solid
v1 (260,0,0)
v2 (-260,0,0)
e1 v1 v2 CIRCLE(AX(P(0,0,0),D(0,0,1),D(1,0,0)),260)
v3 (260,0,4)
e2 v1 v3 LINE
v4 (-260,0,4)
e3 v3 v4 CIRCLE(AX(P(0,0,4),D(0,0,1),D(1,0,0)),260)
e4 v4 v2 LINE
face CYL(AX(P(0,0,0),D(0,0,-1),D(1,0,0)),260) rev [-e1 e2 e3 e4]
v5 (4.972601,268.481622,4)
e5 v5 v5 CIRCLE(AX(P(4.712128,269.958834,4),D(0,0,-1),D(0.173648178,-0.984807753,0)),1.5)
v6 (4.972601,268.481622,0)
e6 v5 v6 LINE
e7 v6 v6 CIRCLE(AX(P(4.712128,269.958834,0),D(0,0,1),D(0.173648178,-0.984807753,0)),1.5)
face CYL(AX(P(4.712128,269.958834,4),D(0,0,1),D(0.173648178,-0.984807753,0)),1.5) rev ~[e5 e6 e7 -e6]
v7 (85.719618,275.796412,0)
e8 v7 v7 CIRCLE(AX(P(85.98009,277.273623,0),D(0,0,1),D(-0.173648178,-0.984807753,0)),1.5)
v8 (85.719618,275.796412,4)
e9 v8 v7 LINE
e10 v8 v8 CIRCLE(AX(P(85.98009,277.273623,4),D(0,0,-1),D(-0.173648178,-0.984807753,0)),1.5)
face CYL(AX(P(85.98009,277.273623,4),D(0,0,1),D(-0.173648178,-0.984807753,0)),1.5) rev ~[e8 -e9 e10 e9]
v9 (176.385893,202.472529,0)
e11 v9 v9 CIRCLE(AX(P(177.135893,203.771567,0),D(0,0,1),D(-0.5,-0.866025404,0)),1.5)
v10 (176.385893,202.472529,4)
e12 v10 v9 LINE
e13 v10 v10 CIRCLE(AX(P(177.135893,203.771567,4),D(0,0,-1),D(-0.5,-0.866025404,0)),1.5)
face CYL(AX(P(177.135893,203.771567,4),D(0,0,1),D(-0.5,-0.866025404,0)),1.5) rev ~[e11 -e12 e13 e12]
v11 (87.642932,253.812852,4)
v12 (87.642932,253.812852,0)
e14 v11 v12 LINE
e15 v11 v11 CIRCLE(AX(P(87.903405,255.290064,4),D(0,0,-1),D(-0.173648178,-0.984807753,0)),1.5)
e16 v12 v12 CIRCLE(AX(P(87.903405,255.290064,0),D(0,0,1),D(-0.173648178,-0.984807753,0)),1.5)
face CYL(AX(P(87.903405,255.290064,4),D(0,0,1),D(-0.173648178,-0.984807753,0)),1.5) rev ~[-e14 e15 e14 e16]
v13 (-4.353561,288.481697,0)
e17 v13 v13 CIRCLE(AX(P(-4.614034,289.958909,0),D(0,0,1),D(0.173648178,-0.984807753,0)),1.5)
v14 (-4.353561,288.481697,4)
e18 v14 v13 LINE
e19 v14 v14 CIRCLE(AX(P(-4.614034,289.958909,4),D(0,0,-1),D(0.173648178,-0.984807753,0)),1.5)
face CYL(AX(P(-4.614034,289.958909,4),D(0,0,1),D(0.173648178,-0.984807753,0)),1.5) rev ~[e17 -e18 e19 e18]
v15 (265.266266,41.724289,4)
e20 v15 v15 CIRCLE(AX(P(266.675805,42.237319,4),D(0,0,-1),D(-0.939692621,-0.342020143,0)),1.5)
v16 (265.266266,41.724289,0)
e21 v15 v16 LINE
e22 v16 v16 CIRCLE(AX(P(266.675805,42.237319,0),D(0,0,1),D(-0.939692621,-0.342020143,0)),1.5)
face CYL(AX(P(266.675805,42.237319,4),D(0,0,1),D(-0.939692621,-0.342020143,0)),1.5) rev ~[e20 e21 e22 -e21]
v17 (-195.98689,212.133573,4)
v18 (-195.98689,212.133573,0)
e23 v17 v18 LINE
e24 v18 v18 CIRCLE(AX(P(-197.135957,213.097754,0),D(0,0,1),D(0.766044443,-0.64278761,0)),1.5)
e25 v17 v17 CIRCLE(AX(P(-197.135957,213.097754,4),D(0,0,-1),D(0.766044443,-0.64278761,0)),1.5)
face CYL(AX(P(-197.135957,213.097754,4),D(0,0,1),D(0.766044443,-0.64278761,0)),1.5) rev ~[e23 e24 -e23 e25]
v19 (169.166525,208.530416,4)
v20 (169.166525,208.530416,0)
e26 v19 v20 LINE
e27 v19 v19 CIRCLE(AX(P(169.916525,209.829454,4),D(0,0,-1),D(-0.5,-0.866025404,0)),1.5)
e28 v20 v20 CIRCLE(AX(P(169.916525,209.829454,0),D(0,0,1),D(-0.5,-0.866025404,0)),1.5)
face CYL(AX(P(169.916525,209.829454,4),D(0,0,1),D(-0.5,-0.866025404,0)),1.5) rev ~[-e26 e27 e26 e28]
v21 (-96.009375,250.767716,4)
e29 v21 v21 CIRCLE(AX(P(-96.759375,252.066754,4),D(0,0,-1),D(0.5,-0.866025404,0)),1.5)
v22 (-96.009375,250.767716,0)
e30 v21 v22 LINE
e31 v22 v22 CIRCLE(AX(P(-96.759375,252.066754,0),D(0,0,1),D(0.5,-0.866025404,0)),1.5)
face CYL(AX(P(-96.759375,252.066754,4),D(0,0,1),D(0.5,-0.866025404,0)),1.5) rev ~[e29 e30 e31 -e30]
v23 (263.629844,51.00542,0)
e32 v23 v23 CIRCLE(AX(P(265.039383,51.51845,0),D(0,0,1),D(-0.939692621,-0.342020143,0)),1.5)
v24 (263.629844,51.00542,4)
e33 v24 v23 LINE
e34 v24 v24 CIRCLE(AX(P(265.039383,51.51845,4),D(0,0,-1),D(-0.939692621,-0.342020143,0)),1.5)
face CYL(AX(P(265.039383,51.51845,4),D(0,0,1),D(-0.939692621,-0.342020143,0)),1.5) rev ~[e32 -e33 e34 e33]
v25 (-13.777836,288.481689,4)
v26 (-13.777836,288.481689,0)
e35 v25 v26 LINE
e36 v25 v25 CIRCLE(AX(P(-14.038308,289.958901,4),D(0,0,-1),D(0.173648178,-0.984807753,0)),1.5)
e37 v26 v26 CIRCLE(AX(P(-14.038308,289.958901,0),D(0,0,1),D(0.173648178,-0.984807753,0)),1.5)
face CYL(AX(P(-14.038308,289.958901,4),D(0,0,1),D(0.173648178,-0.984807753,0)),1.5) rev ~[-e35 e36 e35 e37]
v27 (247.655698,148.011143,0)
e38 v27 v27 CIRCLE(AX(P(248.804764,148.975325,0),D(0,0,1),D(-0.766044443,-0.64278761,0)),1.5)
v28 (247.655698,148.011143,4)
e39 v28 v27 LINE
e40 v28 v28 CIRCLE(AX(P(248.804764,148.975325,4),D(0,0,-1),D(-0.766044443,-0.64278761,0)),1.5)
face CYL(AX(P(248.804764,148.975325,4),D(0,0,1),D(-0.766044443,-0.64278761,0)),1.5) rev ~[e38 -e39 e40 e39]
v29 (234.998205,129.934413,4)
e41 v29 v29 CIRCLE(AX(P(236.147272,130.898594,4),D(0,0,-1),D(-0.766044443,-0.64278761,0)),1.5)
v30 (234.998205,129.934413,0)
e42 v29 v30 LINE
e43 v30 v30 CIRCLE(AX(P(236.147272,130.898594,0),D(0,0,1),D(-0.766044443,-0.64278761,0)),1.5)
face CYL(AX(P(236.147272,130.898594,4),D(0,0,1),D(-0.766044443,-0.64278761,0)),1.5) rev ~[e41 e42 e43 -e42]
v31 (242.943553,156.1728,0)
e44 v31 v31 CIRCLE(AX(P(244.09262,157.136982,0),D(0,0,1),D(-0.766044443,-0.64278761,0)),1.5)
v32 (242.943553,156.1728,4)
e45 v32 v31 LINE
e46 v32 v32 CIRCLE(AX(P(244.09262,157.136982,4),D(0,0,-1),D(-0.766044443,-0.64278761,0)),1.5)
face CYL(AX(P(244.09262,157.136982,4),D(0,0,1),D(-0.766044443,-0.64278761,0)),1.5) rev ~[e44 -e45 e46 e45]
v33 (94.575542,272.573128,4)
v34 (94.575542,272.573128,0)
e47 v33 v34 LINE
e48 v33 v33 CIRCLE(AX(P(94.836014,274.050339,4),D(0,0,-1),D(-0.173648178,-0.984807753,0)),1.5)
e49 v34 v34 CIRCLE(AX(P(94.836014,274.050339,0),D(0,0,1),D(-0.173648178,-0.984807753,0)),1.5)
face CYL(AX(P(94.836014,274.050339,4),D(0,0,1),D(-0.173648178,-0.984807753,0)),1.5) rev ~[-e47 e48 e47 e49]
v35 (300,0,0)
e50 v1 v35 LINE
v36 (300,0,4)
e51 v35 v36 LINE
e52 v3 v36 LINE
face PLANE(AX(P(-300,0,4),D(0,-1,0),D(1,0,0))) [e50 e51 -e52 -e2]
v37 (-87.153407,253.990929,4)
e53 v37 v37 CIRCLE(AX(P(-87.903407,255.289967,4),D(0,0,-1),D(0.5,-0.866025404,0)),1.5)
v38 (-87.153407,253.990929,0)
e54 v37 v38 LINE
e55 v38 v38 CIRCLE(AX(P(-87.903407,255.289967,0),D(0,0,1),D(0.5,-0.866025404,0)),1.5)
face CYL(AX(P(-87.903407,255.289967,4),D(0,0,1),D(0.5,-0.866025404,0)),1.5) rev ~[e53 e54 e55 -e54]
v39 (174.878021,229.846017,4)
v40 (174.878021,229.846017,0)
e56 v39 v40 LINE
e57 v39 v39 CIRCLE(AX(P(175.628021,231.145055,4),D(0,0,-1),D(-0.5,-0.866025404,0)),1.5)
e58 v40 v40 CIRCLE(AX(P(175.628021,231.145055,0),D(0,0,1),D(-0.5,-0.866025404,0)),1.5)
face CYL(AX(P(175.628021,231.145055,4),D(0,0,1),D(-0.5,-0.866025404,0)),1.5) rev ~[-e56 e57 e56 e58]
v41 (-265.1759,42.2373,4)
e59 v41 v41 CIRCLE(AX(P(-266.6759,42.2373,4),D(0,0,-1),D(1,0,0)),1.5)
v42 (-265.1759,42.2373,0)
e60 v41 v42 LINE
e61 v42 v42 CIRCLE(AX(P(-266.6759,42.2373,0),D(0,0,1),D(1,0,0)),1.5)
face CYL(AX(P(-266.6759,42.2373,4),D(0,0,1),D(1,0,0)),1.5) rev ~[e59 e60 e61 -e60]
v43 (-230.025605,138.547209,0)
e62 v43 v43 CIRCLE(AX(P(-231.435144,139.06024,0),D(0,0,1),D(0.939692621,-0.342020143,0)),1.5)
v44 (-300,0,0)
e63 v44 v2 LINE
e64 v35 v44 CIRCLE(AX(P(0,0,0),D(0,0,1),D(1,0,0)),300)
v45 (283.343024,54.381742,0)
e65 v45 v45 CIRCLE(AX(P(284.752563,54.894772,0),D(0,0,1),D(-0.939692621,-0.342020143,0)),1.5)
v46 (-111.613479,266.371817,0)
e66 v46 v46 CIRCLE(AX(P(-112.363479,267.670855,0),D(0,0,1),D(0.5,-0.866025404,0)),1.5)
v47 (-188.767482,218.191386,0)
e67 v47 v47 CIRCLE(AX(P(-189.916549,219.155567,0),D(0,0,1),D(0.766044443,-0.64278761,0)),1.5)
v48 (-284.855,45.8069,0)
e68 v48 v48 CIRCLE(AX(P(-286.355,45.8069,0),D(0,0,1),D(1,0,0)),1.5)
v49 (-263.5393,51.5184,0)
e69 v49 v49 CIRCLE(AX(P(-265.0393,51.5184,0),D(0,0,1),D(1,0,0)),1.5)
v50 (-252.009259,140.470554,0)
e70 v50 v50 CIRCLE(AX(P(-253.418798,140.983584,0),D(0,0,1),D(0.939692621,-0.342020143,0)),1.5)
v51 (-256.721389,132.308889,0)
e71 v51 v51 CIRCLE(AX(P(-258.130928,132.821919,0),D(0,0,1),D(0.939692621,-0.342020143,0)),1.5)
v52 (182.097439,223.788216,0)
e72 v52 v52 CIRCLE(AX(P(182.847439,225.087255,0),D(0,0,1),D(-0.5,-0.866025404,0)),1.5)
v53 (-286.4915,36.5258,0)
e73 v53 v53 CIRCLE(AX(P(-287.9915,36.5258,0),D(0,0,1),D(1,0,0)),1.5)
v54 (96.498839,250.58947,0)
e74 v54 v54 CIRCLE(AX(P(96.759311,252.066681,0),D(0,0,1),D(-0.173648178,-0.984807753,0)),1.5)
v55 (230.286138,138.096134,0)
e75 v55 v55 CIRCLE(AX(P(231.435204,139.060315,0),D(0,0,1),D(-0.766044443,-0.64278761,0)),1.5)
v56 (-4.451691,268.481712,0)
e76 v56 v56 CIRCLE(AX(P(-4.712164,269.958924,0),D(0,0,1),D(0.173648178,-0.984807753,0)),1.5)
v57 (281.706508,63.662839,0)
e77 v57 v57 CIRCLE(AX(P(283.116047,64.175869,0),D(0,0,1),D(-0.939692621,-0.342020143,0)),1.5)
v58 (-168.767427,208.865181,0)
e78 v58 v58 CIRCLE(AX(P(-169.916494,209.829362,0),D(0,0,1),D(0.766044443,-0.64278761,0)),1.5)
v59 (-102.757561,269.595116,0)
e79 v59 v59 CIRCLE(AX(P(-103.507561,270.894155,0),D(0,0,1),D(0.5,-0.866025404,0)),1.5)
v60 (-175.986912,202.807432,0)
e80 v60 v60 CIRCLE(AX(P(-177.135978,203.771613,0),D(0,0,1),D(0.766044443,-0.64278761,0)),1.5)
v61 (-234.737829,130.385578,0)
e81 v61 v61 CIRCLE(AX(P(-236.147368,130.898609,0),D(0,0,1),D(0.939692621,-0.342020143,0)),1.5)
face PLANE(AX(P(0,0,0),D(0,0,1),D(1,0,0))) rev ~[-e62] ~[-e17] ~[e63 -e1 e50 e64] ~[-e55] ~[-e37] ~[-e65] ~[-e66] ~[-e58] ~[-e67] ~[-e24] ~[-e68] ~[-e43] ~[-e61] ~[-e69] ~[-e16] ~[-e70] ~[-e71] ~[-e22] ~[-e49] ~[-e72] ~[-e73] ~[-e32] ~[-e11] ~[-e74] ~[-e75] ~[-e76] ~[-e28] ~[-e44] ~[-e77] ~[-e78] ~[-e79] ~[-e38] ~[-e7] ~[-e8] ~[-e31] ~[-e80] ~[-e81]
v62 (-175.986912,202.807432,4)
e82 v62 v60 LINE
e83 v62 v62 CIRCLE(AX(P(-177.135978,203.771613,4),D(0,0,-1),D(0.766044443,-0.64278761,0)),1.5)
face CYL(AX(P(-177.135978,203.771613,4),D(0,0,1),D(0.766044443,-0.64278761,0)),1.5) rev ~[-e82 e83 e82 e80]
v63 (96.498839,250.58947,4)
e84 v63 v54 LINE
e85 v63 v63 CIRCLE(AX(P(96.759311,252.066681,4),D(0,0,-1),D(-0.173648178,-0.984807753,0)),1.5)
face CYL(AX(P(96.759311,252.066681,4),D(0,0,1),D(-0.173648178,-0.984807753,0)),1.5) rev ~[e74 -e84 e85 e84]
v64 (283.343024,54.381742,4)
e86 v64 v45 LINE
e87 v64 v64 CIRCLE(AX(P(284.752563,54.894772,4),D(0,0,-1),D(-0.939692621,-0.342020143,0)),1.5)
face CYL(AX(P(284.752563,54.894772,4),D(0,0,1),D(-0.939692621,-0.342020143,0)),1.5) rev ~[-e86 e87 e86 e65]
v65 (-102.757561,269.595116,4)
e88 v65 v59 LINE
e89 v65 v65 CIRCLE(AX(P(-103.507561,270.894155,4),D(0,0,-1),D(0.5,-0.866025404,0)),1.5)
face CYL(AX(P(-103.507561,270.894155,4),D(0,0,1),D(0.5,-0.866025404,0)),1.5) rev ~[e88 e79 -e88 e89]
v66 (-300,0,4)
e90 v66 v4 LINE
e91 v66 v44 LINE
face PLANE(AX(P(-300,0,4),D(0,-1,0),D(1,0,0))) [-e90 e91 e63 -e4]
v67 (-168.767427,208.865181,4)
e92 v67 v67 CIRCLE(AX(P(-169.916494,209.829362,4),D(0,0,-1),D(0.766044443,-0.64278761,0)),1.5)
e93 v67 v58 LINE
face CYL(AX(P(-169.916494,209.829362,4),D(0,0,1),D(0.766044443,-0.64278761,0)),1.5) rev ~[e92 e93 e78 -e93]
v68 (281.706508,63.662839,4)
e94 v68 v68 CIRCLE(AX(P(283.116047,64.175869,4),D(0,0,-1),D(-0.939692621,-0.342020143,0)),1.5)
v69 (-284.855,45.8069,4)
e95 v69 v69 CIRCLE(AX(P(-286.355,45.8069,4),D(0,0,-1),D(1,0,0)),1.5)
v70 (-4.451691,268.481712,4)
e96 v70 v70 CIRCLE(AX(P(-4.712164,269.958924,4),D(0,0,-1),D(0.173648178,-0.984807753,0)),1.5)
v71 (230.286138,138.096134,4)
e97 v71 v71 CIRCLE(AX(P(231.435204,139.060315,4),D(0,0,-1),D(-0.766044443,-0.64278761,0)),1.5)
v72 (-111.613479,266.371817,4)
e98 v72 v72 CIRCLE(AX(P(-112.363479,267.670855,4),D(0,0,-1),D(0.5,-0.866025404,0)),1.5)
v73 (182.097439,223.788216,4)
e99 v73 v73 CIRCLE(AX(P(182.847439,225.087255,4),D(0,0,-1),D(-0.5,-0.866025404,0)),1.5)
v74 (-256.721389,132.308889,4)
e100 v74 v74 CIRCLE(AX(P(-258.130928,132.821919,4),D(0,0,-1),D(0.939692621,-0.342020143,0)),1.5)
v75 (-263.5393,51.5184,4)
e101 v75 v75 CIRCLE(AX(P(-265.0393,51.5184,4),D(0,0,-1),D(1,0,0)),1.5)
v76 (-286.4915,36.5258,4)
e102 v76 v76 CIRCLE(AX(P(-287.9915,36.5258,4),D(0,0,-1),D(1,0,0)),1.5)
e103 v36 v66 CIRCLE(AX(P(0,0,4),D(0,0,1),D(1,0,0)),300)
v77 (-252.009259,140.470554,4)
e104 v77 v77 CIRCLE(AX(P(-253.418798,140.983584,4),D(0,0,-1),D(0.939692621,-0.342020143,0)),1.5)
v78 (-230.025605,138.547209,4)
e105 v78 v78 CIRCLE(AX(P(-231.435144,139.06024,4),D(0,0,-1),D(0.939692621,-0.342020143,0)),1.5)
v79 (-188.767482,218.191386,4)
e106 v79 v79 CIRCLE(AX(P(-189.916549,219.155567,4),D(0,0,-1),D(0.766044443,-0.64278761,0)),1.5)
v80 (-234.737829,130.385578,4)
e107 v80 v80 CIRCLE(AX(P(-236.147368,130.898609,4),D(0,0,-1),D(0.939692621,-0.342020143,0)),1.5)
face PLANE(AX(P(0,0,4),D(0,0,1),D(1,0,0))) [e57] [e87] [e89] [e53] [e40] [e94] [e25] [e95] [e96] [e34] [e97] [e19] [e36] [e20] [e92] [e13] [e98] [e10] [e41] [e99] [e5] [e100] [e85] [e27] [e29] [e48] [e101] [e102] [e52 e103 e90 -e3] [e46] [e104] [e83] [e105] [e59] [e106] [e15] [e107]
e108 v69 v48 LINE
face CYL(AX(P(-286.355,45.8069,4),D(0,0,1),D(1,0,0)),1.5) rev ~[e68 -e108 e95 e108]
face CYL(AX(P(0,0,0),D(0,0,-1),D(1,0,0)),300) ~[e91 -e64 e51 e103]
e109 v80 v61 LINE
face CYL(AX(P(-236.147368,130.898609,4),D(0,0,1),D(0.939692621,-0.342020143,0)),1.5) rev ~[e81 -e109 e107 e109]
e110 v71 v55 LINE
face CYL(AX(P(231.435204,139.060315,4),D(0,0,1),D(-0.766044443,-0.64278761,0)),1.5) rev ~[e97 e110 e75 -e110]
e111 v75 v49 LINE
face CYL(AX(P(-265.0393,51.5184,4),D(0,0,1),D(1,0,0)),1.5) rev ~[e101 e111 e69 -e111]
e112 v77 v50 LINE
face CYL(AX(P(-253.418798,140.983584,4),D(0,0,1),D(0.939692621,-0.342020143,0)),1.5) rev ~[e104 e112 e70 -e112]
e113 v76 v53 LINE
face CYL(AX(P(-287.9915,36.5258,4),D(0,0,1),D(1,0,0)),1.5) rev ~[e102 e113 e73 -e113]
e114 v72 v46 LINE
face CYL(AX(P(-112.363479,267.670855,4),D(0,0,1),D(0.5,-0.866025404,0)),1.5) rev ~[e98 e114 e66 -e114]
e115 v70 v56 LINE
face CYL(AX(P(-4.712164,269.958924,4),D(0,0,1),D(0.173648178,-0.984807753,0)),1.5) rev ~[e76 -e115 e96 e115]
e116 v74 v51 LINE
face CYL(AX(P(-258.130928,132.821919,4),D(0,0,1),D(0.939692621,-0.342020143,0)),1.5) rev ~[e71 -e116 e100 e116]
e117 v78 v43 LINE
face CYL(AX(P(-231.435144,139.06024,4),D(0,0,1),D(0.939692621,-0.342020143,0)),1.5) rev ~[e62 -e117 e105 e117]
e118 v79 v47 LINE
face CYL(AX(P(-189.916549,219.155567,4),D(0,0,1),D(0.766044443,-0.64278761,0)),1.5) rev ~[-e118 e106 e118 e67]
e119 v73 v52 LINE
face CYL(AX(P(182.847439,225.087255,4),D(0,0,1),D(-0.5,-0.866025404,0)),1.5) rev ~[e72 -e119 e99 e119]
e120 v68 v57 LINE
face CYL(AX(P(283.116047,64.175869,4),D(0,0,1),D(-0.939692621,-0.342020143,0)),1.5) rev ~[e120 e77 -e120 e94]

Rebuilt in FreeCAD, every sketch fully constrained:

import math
import FreeCAD as App
import Part
import Sketcher
from FreeCAD import Vector
Q = App.Units.Quantity

doc = App.newDocument("Part")
body = doc.addObject("PartDesign::Body", "Body")

sketch1 = body.newObject("Sketcher::SketchObject", "Sketch")
sketch1.AttachmentSupport = (doc.getObject("XY_Plane"), [""])
sketch1.MapMode = "FlatFace"
sketch1.addGeometry([
    Part.Circle(Vector(0, 0, 0), Vector(0, 0, 1), 300),
    Part.Circle(Vector(0, 0, 0), Vector(0, 0, 1), 260),
], False)
sketch1.addConstraint([
    Sketcher.Constraint("Coincident", 0, 3, -1, 1),
    Sketcher.Constraint("Coincident", 1, 3, -1, 1),
    Sketcher.Constraint("Diameter", 0, Q("600 mm")),
    Sketcher.Constraint("Diameter", 1, Q("520 mm")),
])
pad1 = body.newObject("PartDesign::Pad", "Pad")
pad1.Profile = sketch1
pad1.Length = 4

sketch2 = body.newObject("Sketcher::SketchObject", "Sketch001")
sketch2.AttachmentSupport = (doc.getObject("XY_Plane"), [""])
sketch2.MapMode = "FlatFace"
sketch2.AttachmentOffset = App.Placement(Vector(0, 0, 4), App.Rotation())
sketch2.addGeometry([
    Part.LineSegment(Vector(300, 0, 0), Vector(-300, 0, 0)),
    Part.ArcOfCircle(Part.Circle(Vector(0, 0, 0), Vector(0, 0, 1), 300), math.radians(180), math.radians(360)),
], False)
sketch2.addConstraint([
    Sketcher.Constraint("Coincident", 0, 1, 1, 2),
    Sketcher.Constraint("Coincident", 1, 1, 0, 2),
    Sketcher.Constraint("Horizontal", 0),
    Sketcher.Constraint("Coincident", 1, 3, -1, 1),
    Sketcher.Constraint("PointOnObject", 0, 1, -1),
    Sketcher.Constraint("Radius", 1, Q("300 mm")),
])
pocket1 = body.newObject("PartDesign::Pocket", "Pocket")
pocket1.Profile = sketch2
pocket1.Length = 10

sketch3 = body.newObject("Sketcher::SketchObject", "Sketch002")
sketch3.AttachmentSupport = (doc.getObject("XY_Plane"), [""])
sketch3.MapMode = "FlatFace"
sketch3.AttachmentOffset = App.Placement(Vector(0, 0, 4), App.Rotation())
sketch3.addGeometry([
    Part.Circle(Vector(-288, 36.5, 0), Vector(0, 0, 1), 1.5),
    Part.Circle(Vector(-266.7, 42.2, 0), Vector(0, 0, 1), 1.5),
    Part.Circle(Vector(-286.4, 45.8, 0), Vector(0, 0, 1), 1.5),
    Part.Circle(Vector(-265, 51.5, 0), Vector(0, 0, 1), 1.5),
], False)
sketch3.addConstraint([
    Sketcher.Constraint("Equal", 0, 1),
    Sketcher.Constraint("Equal", 1, 2),
    Sketcher.Constraint("Equal", 2, 3),
    Sketcher.Constraint("Diameter", 0, Q("3 mm")),
    Sketcher.Constraint("DistanceX", 1, 3, -1, 1, Q("266.676 mm")),
    Sketcher.Constraint("DistanceX", 2, 3, -1, 1, Q("286.355 mm")),
    Sketcher.Constraint("DistanceY", -1, 1, 2, 3, Q("45.807 mm")),
    Sketcher.Constraint("DistanceY", 0, 3, 2, 3, Q("9.281 mm")),
    Sketcher.Constraint("DistanceY", 1, 3, 3, 3, Q("9.281 mm")),
    Sketcher.Constraint("DistanceX", 0, 3, -1, 1, Q("287.9915 mm")),
    Sketcher.Constraint("DistanceY", -1, 1, 1, 3, Q("42.2373 mm")),
    Sketcher.Constraint("DistanceX", 3, 3, -1, 1, Q("265.0393 mm")),
])
pocket2 = body.newObject("PartDesign::Pocket", "Pocket001")
pocket2.Profile = sketch3
pocket2.Type = "ThroughAll"
doc.recompute()

polarpattern = body.newObject("PartDesign::PolarPattern", "PolarPattern")
polarpattern.Originals = [pocket2]
polarpattern.Axis = (doc.getObject("Z_Axis"), [""])
polarpattern.Angle = 160
polarpattern.Occurrences = 9
polarpattern.Reversed = True
body.Tip = polarpattern

doc.recompute()
